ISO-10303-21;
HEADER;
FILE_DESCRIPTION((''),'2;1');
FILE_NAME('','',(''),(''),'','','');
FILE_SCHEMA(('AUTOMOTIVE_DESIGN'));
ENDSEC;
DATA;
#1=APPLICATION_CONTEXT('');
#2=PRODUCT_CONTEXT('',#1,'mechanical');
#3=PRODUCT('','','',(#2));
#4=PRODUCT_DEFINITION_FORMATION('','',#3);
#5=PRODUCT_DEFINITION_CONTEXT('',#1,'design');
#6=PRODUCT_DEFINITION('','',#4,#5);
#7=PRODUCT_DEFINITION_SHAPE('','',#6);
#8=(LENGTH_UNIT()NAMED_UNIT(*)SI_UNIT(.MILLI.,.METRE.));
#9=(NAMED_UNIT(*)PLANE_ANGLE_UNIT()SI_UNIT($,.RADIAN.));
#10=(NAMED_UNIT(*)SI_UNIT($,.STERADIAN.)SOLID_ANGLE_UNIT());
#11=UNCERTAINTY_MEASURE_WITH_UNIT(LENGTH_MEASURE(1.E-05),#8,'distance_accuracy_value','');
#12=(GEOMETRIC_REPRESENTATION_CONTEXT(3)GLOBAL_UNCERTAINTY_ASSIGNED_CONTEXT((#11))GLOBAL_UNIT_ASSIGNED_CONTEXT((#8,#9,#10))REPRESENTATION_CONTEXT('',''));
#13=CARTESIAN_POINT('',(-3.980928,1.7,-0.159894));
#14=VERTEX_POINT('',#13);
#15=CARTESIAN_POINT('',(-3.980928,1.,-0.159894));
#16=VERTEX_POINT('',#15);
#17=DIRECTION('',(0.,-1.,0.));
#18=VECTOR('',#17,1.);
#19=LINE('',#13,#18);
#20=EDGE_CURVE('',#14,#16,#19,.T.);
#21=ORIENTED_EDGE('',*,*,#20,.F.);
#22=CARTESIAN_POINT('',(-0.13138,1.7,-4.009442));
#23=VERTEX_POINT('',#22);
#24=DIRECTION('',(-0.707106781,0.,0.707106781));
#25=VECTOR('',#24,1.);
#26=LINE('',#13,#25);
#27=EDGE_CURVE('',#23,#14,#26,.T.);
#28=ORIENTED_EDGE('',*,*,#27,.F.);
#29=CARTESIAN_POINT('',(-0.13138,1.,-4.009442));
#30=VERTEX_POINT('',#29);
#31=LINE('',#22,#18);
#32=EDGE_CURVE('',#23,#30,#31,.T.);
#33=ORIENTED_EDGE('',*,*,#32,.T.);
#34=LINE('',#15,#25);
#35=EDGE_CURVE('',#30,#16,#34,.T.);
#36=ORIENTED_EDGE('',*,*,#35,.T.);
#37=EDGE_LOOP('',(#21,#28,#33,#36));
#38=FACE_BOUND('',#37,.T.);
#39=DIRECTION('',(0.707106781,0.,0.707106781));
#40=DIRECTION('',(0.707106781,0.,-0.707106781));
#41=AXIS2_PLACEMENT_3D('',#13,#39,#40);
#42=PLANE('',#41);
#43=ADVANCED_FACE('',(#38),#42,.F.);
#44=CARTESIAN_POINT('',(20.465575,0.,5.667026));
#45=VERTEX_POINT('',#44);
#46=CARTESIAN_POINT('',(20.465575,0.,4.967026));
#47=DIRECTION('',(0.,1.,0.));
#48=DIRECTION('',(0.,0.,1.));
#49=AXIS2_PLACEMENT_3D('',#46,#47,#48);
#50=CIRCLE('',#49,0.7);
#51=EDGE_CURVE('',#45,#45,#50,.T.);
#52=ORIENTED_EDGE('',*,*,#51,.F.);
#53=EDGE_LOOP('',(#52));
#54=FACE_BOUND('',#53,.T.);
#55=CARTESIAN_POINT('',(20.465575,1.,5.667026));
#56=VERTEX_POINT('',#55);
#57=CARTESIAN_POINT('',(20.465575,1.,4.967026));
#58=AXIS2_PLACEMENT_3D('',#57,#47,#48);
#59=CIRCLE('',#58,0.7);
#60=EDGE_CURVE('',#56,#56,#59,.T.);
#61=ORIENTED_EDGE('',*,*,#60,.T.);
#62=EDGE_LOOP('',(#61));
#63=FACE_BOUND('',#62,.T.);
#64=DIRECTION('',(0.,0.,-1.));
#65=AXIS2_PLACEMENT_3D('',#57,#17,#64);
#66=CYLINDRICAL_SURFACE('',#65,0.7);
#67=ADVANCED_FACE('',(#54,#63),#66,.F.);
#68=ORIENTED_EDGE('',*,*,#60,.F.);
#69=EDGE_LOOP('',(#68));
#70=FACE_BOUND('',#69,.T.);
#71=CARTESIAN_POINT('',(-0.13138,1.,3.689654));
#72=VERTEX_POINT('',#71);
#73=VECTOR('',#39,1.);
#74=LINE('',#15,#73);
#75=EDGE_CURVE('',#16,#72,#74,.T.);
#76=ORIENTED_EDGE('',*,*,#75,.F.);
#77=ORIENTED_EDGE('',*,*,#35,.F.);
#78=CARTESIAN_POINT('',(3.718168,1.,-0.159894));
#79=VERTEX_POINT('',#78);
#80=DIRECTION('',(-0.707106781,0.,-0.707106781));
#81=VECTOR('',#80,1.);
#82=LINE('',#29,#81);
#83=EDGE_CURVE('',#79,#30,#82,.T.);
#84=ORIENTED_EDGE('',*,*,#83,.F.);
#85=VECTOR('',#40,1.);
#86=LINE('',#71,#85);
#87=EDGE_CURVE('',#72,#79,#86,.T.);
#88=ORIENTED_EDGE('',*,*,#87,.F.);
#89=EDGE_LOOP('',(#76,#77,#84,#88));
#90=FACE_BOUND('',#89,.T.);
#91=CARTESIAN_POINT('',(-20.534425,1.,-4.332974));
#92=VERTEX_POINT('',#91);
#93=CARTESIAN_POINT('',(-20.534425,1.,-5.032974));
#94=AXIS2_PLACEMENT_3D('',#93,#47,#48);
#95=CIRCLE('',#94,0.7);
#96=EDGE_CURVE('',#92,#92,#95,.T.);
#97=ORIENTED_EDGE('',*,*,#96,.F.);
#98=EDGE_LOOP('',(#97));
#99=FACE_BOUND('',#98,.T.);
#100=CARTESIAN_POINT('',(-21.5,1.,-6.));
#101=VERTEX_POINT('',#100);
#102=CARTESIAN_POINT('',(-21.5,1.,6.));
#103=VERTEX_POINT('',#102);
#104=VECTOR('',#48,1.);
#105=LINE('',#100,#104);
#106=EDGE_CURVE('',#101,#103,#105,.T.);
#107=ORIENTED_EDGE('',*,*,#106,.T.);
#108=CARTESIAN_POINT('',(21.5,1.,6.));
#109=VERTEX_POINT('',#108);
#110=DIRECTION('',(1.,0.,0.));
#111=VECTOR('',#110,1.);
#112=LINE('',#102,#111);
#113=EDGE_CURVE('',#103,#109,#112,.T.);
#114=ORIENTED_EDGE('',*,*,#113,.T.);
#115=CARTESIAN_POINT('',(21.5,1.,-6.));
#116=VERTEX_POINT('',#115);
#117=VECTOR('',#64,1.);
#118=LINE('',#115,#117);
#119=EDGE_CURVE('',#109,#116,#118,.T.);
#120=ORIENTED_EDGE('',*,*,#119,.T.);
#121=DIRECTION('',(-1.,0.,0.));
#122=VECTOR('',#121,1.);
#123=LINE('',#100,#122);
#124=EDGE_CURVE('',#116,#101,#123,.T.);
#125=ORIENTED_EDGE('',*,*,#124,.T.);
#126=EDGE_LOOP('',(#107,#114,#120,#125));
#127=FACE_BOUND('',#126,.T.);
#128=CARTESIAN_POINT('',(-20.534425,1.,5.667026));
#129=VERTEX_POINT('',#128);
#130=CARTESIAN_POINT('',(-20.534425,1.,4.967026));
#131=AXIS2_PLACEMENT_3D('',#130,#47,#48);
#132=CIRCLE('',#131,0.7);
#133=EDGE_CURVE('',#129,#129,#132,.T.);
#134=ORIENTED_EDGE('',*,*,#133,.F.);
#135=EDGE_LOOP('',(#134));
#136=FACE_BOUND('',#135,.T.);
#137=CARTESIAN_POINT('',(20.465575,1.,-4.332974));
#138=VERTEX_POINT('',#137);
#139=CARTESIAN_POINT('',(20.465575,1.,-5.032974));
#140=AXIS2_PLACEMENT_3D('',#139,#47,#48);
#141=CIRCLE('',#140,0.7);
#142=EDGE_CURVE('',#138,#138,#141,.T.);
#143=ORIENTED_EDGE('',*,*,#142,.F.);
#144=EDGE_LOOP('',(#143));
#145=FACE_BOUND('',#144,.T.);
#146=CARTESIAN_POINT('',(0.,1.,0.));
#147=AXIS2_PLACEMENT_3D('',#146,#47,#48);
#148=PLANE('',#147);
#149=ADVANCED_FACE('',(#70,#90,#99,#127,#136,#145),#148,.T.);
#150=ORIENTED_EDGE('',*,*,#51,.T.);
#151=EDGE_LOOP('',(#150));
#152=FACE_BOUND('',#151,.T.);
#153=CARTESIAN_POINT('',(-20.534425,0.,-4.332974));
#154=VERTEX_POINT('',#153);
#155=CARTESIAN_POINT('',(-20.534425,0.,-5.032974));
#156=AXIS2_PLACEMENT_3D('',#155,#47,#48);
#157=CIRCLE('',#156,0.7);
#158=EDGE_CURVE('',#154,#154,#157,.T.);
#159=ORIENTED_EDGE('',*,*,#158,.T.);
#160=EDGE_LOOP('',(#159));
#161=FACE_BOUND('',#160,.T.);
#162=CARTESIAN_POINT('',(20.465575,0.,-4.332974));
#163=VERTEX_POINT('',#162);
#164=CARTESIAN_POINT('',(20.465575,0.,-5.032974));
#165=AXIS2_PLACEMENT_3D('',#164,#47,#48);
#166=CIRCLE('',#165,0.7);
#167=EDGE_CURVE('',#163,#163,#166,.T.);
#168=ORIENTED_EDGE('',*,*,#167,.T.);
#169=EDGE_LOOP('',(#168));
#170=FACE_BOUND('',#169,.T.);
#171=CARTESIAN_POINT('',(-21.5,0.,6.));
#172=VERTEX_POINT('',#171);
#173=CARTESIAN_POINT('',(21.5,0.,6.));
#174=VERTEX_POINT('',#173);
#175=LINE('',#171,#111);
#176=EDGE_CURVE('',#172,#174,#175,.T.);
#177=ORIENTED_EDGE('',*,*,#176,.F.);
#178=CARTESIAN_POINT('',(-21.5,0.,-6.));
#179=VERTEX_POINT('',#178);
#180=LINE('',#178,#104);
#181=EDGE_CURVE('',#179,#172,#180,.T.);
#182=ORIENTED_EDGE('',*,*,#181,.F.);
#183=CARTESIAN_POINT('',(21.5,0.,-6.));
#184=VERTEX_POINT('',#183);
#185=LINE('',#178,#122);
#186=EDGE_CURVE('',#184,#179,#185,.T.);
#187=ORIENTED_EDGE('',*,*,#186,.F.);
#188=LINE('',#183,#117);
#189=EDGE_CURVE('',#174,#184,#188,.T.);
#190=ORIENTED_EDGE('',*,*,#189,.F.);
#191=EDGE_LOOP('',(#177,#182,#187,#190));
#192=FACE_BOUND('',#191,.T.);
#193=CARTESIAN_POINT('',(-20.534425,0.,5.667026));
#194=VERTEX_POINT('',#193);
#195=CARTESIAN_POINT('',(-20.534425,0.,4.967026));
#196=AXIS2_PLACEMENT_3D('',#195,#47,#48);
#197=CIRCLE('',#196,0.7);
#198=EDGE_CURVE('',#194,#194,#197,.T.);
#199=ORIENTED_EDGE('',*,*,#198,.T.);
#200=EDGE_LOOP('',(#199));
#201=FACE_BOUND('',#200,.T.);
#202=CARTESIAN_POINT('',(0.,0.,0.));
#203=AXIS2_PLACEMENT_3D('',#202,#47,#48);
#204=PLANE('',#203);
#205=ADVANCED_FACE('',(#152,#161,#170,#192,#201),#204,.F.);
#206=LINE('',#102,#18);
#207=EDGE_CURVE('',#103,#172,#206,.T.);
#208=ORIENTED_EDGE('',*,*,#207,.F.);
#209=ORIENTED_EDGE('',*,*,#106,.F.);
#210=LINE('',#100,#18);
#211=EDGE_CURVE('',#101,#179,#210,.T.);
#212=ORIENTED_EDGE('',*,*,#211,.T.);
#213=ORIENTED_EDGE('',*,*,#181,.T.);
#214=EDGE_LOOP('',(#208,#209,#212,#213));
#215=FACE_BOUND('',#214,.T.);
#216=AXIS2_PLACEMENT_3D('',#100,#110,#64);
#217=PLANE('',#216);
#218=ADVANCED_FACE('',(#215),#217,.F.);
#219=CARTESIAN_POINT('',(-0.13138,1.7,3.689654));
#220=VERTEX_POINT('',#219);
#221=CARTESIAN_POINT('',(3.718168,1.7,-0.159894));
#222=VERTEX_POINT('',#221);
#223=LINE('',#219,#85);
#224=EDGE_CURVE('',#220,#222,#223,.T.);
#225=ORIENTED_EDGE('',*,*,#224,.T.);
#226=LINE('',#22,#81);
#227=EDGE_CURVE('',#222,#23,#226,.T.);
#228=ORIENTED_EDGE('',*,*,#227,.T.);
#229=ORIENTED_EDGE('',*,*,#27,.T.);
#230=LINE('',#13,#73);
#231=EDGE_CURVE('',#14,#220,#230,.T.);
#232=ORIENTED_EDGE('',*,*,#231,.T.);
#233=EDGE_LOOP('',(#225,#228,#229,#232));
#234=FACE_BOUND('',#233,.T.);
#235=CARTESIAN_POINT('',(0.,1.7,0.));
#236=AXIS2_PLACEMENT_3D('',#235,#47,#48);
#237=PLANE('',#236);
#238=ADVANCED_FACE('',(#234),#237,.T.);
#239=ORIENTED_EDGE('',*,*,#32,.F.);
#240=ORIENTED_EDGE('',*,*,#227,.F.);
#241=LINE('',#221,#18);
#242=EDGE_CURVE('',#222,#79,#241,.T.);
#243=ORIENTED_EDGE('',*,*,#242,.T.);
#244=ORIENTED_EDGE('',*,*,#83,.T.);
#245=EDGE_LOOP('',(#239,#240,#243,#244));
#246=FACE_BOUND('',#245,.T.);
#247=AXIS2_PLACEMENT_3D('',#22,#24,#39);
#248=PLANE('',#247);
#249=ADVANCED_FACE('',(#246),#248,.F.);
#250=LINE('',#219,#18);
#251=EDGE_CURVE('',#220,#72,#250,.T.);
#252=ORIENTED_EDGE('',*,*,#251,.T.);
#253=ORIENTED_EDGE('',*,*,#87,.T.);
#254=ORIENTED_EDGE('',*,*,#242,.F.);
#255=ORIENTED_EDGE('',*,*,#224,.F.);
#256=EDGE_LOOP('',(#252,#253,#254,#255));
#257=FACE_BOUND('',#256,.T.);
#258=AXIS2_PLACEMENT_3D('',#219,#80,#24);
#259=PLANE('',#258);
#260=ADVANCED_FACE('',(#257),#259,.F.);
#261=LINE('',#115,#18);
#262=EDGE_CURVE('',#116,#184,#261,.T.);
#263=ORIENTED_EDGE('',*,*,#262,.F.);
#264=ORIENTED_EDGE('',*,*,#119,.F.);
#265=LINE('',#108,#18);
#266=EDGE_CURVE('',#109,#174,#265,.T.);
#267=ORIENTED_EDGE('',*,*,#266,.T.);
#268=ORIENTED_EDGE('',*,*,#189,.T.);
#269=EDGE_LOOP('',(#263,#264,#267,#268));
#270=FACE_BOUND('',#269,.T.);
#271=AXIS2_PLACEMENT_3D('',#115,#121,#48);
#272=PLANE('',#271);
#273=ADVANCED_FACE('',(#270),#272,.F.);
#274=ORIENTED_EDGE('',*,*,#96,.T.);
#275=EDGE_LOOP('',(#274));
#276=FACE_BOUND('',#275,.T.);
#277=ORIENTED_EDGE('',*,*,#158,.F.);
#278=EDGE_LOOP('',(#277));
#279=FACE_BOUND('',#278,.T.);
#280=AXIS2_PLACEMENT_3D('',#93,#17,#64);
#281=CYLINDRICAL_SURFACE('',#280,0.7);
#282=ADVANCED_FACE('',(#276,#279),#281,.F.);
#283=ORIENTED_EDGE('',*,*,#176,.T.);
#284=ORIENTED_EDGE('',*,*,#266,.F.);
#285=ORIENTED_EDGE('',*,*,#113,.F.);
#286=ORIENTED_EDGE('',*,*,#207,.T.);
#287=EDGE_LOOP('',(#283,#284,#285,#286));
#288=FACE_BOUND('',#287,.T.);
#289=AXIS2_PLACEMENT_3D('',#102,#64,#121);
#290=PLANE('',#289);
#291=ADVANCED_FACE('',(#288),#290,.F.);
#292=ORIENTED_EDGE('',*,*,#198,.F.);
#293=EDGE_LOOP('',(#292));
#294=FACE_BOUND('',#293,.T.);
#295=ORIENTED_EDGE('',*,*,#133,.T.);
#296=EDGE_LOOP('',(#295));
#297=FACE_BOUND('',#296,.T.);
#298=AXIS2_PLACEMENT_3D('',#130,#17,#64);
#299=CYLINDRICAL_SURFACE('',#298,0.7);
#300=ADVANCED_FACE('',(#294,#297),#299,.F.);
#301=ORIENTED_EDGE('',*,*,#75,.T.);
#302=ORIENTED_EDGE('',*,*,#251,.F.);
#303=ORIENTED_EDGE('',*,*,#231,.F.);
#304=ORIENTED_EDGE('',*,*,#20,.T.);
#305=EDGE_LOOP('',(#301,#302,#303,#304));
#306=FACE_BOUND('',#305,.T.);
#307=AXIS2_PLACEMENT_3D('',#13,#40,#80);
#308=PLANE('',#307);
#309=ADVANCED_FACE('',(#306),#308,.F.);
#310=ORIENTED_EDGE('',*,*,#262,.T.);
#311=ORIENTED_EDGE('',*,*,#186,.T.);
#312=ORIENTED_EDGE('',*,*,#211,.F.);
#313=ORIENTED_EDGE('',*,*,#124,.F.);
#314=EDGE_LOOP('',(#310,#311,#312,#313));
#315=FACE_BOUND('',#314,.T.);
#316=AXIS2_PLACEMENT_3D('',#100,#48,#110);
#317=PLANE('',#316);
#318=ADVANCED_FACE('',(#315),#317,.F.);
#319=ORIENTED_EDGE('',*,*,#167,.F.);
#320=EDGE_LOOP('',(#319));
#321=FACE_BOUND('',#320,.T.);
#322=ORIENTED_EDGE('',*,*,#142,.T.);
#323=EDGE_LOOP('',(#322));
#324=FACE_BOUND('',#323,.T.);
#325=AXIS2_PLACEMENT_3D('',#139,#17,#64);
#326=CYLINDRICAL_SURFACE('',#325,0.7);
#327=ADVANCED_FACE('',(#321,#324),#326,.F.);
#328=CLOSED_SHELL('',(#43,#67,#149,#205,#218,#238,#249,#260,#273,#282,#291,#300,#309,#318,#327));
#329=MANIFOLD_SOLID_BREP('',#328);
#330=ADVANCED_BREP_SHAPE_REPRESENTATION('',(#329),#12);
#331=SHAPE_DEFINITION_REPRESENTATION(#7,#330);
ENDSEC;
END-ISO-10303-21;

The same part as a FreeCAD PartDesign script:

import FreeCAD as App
import Part
import Sketcher
from FreeCAD import Vector


def add_polygon(sketch, points):
    """Adds a closed chain of lines whose ends are joined by coincident constraints."""
    first, n = sketch.GeometryCount, len(points)
    for a, b in zip(points, points[1:] + points[:1]):
        sketch.addGeometry(Part.LineSegment(App.Vector(*a, 0), App.Vector(*b, 0)), False)
    for i in range(n):
        sketch.addConstraint(Sketcher.Constraint("Coincident", first + i, 2, first + (i + 1) % n, 1))

doc = App.newDocument("Part")
body = doc.addObject("PartDesign::Body", "Body")

sketch1 = doc.addObject("Sketcher::SketchObject", "Sketch")
body.addObject(sketch1)
sketch1.AttachmentSupport = (doc.XZ_Plane, [""])
sketch1.MapMode = "FlatFace"
add_polygon(sketch1, [(-21.5, -6), (-21.5, 6), (21.5, 6), (21.5, -6)])
sketch1.addGeometry(Part.Circle(Vector(-20.5, 5, 0), Vector(0, 0, 1), 0.7), False)
sketch1.addGeometry(Part.Circle(Vector(20.5, 5, 0), Vector(0, 0, 1), 0.7), False)
sketch1.addGeometry(Part.Circle(Vector(-20.5, -5, 0), Vector(0, 0, 1), 0.7), False)
sketch1.addGeometry(Part.Circle(Vector(20.5, -5, 0), Vector(0, 0, 1), 0.7), False)
sketch1.addConstraint(Sketcher.Constraint("Vertical", 0))
sketch1.addConstraint(Sketcher.Constraint("Horizontal", 1))
sketch1.addConstraint(Sketcher.Constraint("Vertical", 2))
sketch1.addConstraint(Sketcher.Constraint("Horizontal", 3))
sketch1.addConstraint(Sketcher.Constraint("Equal", 4, 5))
sketch1.addConstraint(Sketcher.Constraint("Equal", 5, 6))
sketch1.addConstraint(Sketcher.Constraint("Equal", 6, 7))
sketch1.addConstraint(Sketcher.Constraint("Symmetric", 0, 2, 2, 2, -1, 1))
sketch1.addConstraint(Sketcher.Constraint("Horizontal", 4, 3, 5, 3))
sketch1.addConstraint(Sketcher.Constraint("Horizontal", 6, 3, 7, 3))
sketch1.addConstraint(Sketcher.Constraint("Vertical", 4, 3, 6, 3))
sketch1.addConstraint(Sketcher.Constraint("Vertical", 5, 3, 7, 3))
sketch1.addConstraint(Sketcher.Constraint("Diameter", 4, 1.4))
sketch1.addConstraint(Sketcher.Constraint("DistanceX", 1, 1, 1, 2, 43.0))
sketch1.addConstraint(Sketcher.Constraint("DistanceY", 0, 1, 0, 2, 12.0))
sketch1.addConstraint(Sketcher.Constraint("DistanceX", 4, 3, 5, 3, 41.0))
sketch1.addConstraint(Sketcher.Constraint("DistanceY", 6, 3, 4, 3, 10.0))
sketch1.addConstraint(Sketcher.Constraint("DistanceX", 4, 3, -1, 1, 20.534425))
sketch1.addConstraint(Sketcher.Constraint("DistanceY", -1, 1, 4, 3, 4.967026))
pad1 = doc.addObject("PartDesign::Pad", "Pad")
body.addObject(pad1)
pad1.Profile = sketch1
pad1.Length = 1
pad1.Reversed = True

sketch2 = doc.addObject("Sketcher::SketchObject", "Sketch001")
body.addObject(sketch2)
sketch2.AttachmentSupport = (doc.XZ_Plane, [""])
sketch2.MapMode = "FlatFace"
sketch2.AttachmentOffset = App.Placement(Vector(0, 0, -1), App.Rotation())
add_polygon(sketch2, [(0, -4), (-4, 0), (0, 4), (4, 0)])
sketch2.addConstraint(Sketcher.Constraint("Perpendicular", 0, 1))
sketch2.addConstraint(Sketcher.Constraint("Perpendicular", 1, 2))
sketch2.addConstraint(Sketcher.Constraint("Perpendicular", 2, 3))
sketch2.addConstraint(Sketcher.Constraint("Horizontal", 0, 2, 2, 2))
sketch2.addConstraint(Sketcher.Constraint("Vertical", 1, 2, 3, 2))
sketch2.addConstraint(Sketcher.Constraint("DistanceX", 1, 2, -1, 1, 0.13138))
sketch2.addConstraint(Sketcher.Constraint("DistanceY", 3, 2, -1, 1, 4.009442))
sketch2.addConstraint(Sketcher.Constraint("Distance", 0, 5.444083))
pad2 = doc.addObject("PartDesign::Pad", "Pad001")
body.addObject(pad2)
pad2.Profile = sketch2
pad2.Length = 0.7
pad2.Reversed = True

doc.recompute()
